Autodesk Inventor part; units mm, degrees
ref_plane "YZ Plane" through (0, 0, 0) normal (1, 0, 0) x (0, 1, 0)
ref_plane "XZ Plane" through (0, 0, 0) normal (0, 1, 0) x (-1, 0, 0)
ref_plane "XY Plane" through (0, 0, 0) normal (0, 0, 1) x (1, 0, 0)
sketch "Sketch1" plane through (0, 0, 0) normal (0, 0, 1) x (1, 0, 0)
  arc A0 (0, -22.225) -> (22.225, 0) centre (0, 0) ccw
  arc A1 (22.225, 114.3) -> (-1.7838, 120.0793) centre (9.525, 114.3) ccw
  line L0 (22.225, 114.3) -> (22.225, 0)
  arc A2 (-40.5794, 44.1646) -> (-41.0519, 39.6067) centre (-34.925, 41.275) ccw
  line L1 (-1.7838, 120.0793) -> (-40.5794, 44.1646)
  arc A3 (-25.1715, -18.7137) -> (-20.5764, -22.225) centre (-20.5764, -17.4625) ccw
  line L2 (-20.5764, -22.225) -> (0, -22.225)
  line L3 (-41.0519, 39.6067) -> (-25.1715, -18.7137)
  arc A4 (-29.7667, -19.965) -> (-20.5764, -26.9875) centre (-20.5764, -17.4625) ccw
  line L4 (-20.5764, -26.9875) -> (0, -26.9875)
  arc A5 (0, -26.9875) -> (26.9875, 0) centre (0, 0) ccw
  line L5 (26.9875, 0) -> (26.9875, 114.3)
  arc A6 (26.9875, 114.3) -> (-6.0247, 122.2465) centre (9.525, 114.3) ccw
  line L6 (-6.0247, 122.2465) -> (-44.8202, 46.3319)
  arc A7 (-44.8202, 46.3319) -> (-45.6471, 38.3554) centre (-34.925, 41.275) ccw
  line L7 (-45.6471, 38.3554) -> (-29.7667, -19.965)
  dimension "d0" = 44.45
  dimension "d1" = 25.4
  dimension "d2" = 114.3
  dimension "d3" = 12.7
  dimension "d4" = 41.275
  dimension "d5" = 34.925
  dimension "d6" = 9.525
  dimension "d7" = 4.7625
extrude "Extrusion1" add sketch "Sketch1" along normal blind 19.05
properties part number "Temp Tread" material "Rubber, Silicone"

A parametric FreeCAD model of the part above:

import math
import FreeCAD as App
import Part
import Sketcher
from FreeCAD import Vector
Q = App.Units.Quantity

doc = App.newDocument("Part")
body = doc.addObject("PartDesign::Body", "Body")

sketch1 = body.newObject("Sketcher::SketchObject", "Sketch")
sketch1.AttachmentSupport = (doc.getObject("XY_Plane"), [""])
sketch1.MapMode = "FlatFace"
sketch1.addGeometry([
    Part.LineSegment(Vector(-45.6, 38.4, 0), Vector(-29.8, -20, 0)),
    Part.ArcOfCircle(Part.Circle(Vector(-20.6, -17.5, 0), Vector(0, 0, 1), 9.5), math.radians(-165), math.radians(-90)),
    Part.LineSegment(Vector(-20.6, -27, 0), Vector(0, -27, 0)),
    Part.ArcOfCircle(Part.Circle(Vector(0, 0, 0), Vector(0, 0, 1), 27), math.radians(-90), math.radians(0)),
    Part.LineSegment(Vector(27, 0, 0), Vector(27, 114.3, 0)),
    Part.ArcOfCircle(Part.Circle(Vector(9.5, 114.3, 0), Vector(0, 0, 1), 17.5), math.radians(0), math.radians(153)),
    Part.LineSegment(Vector(-6, 122.2, 0), Vector(-44.8, 46.3, 0)),
    Part.ArcOfCircle(Part.Circle(Vector(-34.9, 41.3, 0), Vector(0, 0, 1), 11.1), math.radians(153), math.radians(195)),
    Part.ArcOfCircle(Part.Circle(Vector(0, 0, 0), Vector(0, 0, 1), 22.2), math.radians(-90), math.radians(0)),
    Part.LineSegment(Vector(0, -22.2, 0), Vector(-20.6, -22.2, 0)),
    Part.ArcOfCircle(Part.Circle(Vector(-20.6, -17.5, 0), Vector(0, 0, 1), 4.8), math.radians(-165), math.radians(-90)),
    Part.LineSegment(Vector(-25.2, -18.7, 0), Vector(-41.1, 39.6, 0)),
    Part.ArcOfCircle(Part.Circle(Vector(-34.9, 41.3, 0), Vector(0, 0, 1), 6.3), math.radians(153), math.radians(195)),
    Part.LineSegment(Vector(-40.6, 44.2, 0), Vector(-1.8, 120.1, 0)),
    Part.ArcOfCircle(Part.Circle(Vector(9.5, 114.3, 0), Vector(0, 0, 1), 12.7), math.radians(0), math.radians(153)),
    Part.LineSegment(Vector(22.2, 114.3, 0), Vector(22.2, 0, 0)),
], False)
sketch1.addConstraint([
    Sketcher.Constraint("Tangent", 0, 2, 1, 1),
    Sketcher.Constraint("Tangent", 1, 2, 2, 1),
    Sketcher.Constraint("Tangent", 2, 2, 3, 1),
    Sketcher.Constraint("Tangent", 3, 2, 4, 1),
    Sketcher.Constraint("Tangent", 4, 2, 5, 1),
    Sketcher.Constraint("Tangent", 5, 2, 6, 1),
    Sketcher.Constraint("Tangent", 6, 2, 7, 1),
    Sketcher.Constraint("Tangent", 7, 2, 0, 1),
    Sketcher.Constraint("Tangent", 8, 1, 9, 1),
    Sketcher.Constraint("Tangent", 9, 2, 10, 2),
    Sketcher.Constraint("Tangent", 10, 1, 11, 1),
    Sketcher.Constraint("Tangent", 11, 2, 12, 2),
    Sketcher.Constraint("Tangent", 12, 1, 13, 1),
    Sketcher.Constraint("Tangent", 13, 2, 14, 2),
    Sketcher.Constraint("Tangent", 14, 1, 15, 1),
    Sketcher.Constraint("Tangent", 15, 2, 8, 2),
    Sketcher.Constraint("Horizontal", 2),
    Sketcher.Constraint("Vertical", 4),
    Sketcher.Constraint("Horizontal", 9),
    Sketcher.Constraint("Vertical", 15),
    Sketcher.Constraint("Coincident", 3, 3, -1, 1),
    Sketcher.Constraint("Coincident", 8, 3, -1, 1),
    Sketcher.Constraint("Coincident", 10, 3, 1, 3),
    Sketcher.Constraint("Coincident", 12, 3, 7, 3),
    Sketcher.Constraint("Coincident", 14, 3, 5, 3),
    Sketcher.Constraint("Parallel", 0, 11),
    Sketcher.Constraint("Radius", 14, Q("0.5 in")),
    Sketcher.Constraint("Radius", 12, Q("0.25 in")),
    Sketcher.Constraint("DistanceY", 4, 1, 4, 2, Q("4.5 in")),
    Sketcher.Constraint("Radius", 1, Q("0.375 in")),
    Sketcher.Constraint("Radius", 5, Q("0.6875 in")),
    Sketcher.Constraint("Radius", 8, Q("0.875 in")),
    Sketcher.Constraint("DistanceX", 7, 3, 5, 3, Q("1.75 in")),
    Sketcher.Constraint("DistanceY", -1, 1, 7, 3, Q("1.625 in")),
    Sketcher.Constraint("DistanceX", 2, 1, 2, 2, Q("0.8101 in")),
])
pad1 = body.newObject("PartDesign::Pad", "Pad")
pad1.Profile = sketch1
pad1.Length = Q("0.75 in")

doc.recompute()
